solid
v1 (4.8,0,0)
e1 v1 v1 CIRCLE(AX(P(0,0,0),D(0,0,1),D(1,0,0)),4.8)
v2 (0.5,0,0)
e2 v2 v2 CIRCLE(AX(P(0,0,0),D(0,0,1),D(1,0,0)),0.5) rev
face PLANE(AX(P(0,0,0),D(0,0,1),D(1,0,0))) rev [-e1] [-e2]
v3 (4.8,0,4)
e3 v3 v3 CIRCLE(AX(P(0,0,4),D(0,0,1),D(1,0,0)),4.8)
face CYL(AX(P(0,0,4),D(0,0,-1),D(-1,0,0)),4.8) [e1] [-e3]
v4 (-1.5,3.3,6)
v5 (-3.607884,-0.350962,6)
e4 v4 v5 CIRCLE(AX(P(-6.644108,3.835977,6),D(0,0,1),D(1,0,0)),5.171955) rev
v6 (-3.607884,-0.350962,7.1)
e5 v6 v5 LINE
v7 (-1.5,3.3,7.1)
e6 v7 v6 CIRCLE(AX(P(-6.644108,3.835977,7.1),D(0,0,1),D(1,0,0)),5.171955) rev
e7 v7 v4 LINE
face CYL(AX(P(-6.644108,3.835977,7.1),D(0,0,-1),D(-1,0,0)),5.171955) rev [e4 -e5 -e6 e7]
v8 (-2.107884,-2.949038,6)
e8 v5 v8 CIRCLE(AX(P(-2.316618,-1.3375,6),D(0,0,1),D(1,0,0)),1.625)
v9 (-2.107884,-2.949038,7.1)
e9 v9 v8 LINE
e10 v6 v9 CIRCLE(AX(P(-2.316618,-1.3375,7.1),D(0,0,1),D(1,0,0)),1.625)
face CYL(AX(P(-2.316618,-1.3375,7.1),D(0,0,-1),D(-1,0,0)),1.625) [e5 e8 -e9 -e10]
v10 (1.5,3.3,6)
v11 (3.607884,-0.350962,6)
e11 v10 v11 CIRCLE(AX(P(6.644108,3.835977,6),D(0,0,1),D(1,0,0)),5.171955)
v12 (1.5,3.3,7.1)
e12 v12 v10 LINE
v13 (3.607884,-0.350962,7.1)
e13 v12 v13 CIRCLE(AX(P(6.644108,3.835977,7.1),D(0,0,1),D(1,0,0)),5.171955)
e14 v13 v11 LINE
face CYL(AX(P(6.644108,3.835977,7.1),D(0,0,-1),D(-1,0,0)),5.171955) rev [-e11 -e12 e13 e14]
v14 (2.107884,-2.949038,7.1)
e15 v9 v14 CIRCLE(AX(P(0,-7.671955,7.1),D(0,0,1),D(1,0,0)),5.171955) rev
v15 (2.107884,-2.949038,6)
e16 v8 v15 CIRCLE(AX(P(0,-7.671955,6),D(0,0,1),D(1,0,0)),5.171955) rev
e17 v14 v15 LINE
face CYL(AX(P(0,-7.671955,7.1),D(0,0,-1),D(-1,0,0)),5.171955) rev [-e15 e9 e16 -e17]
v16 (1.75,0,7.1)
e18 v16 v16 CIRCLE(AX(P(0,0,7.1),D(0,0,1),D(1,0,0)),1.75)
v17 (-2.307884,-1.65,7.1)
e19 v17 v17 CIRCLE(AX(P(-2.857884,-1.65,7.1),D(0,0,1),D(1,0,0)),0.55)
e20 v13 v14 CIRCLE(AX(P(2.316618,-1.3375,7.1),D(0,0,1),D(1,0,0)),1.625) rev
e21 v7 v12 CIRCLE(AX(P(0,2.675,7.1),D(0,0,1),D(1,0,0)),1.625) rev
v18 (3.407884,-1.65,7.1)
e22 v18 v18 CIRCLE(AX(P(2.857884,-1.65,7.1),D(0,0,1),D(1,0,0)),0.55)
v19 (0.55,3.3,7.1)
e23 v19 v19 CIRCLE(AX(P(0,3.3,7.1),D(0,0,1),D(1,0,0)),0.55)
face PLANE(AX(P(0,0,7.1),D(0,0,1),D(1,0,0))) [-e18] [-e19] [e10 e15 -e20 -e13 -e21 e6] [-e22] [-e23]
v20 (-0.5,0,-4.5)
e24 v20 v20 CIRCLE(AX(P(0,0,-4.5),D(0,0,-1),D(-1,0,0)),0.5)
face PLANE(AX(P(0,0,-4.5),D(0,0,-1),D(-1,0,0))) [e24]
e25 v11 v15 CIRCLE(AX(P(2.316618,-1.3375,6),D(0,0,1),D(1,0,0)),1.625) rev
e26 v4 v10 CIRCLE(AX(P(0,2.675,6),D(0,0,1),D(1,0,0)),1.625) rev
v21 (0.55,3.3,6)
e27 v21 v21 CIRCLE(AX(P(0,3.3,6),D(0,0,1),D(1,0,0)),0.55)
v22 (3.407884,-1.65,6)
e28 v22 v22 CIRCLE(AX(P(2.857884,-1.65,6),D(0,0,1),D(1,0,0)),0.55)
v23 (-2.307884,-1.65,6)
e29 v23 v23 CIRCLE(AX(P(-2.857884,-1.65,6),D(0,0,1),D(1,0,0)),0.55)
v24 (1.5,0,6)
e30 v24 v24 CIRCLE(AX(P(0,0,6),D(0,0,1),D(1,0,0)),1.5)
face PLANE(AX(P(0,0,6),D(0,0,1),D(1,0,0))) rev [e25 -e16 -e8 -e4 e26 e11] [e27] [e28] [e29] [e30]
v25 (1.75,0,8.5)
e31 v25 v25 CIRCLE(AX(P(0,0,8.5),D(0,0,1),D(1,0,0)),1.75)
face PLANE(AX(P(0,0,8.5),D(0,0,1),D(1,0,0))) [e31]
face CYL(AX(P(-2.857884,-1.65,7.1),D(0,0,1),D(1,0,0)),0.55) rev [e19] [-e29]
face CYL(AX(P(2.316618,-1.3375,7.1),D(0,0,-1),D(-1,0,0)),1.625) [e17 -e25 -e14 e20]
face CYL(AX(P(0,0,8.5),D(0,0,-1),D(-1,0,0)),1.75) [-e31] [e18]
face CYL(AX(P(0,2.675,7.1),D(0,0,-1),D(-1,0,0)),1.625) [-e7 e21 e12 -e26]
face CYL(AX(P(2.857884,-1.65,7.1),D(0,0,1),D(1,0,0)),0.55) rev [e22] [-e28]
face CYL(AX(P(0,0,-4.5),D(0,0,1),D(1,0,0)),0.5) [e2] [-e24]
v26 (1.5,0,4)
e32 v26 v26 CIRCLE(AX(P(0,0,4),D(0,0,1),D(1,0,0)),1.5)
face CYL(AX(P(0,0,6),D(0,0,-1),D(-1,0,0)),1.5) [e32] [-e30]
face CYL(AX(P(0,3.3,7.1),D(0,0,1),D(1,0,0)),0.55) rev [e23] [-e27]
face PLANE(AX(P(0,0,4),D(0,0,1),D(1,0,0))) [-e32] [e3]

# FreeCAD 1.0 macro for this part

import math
import FreeCAD as App
import Part
import Sketcher
from FreeCAD import Vector
Q = App.Units.Quantity

doc = App.newDocument("Part")
body = doc.addObject("PartDesign::Body", "Body")

# Sketch on XY plane
sketch1 = body.newObject("Sketcher::SketchObject", "Sketch")
sketch1.AttachmentSupport = (doc.getObject("XY_Plane"), [""])
sketch1.MapMode = "FlatFace"
sketch1.addGeometry(Part.Circle(Vector(0, 0, 0), Vector(0, 0, 1), 4.8), False)
sketch1.addConstraint(Sketcher.Constraint("Coincident", 0, 3, -1, 1))
sketch1.addConstraint(Sketcher.Constraint("Diameter", 0, Q("9.6 mm")))
pad1 = body.newObject("PartDesign::Pad", "Pad")
pad1.Profile = sketch1
pad1.Length = 4

# Sketch on XY plane
sketch2 = body.newObject("Sketcher::SketchObject", "Sketch001")
sketch2.AttachmentSupport = (doc.getObject("XY_Plane"), [""])
sketch2.MapMode = "FlatFace"
sketch2.AttachmentOffset = App.Placement(Vector(0, 0, 4), App.Rotation())
sketch2.addGeometry(Part.Circle(Vector(0, 0, 0), Vector(0, 0, 1), 1.5), False)
sketch2.addConstraint(Sketcher.Constraint("Coincident", 0, 3, -1, 1))
sketch2.addConstraint(Sketcher.Constraint("Diameter", 0, Q("3 mm")))
pad2 = body.newObject("PartDesign::Pad", "Pad001")
pad2.Profile = sketch2
pad2.Length = 2

# Sketch on XY plane
sketch3 = body.newObject("Sketcher::SketchObject", "Sketch002")
sketch3.AttachmentSupport = (doc.getObject("XY_Plane"), [""])
sketch3.MapMode = "FlatFace"
sketch3.AttachmentOffset = App.Placement(Vector(0, 0, 6), App.Rotation())
sketch3.addGeometry(Part.ArcOfCircle(Part.Circle(Vector(2.3, -1.3, 0), Vector(0, 0, 1), 1.6), math.radians(-30), math.radians(37)), False)
sketch3.addGeometry(Part.ArcOfCircle(Part.Circle(Vector(6.6, 3.8, 0), Vector(0, 0, 1), 5.2), math.radians(-150), math.radians(-126)), False)
sketch3.addGeometry(Part.ArcOfCircle(Part.Circle(Vector(6.6, 3.8, 0), Vector(0, 0, 1), 5.2), math.radians(-174), math.radians(-150)), False)
sketch3.addGeometry(Part.ArcOfCircle(Part.Circle(Vector(0, 2.7, 0), Vector(0, 0, 1), 1.6), math.radians(23), math.radians(90)), False)
sketch3.addGeometry(Part.ArcOfCircle(Part.Circle(Vector(0, 2.7, 0), Vector(0, 0, 1), 1.6), math.radians(90), math.radians(157)), False)
sketch3.addGeometry(Part.ArcOfCircle(Part.Circle(Vector(-6.6, 3.8, 0), Vector(0, 0, 1), 5.2), math.radians(-30), math.radians(-6)), False)
sketch3.addGeometry(Part.ArcOfCircle(Part.Circle(Vector(-6.6, 3.8, 0), Vector(0, 0, 1), 5.2), math.radians(-54), math.radians(-30)), False)
sketch3.addGeometry(Part.ArcOfCircle(Part.Circle(Vector(-2.3, -1.3, 0), Vector(0, 0, 1), 1.6), math.radians(143), math.radians(210)), False)
sketch3.addGeometry(Part.ArcOfCircle(Part.Circle(Vector(-2.3, -1.3, 0), Vector(0, 0, 1), 1.6), math.radians(-150), math.radians(-83)), False)
sketch3.addGeometry(Part.ArcOfCircle(Part.Circle(Vector(0, -7.7, 0), Vector(0, 0, 1), 5.2), math.radians(90), math.radians(114)), False)
sketch3.addGeometry(Part.ArcOfCircle(Part.Circle(Vector(0, -7.7, 0), Vector(0, 0, 1), 5.2), math.radians(66), math.radians(90)), False)
sketch3.addGeometry(Part.ArcOfCircle(Part.Circle(Vector(2.3, -1.3, 0), Vector(0, 0, 1), 1.6), math.radians(-97), math.radians(-30)), False)
sketch3.addConstraint(Sketcher.Constraint("Coincident", 0, 2, 1, 2))
sketch3.addConstraint(Sketcher.Constraint("Tangent", 1, 1, 2, 2))
sketch3.addConstraint(Sketcher.Constraint("Coincident", 2, 1, 3, 1))
sketch3.addConstraint(Sketcher.Constraint("Tangent", 3, 2, 4, 1))
sketch3.addConstraint(Sketcher.Constraint("Coincident", 4, 2, 5, 2))
sketch3.addConstraint(Sketcher.Constraint("Tangent", 5, 1, 6, 2))
sketch3.addConstraint(Sketcher.Constraint("Coincident", 6, 1, 7, 1))
sketch3.addConstraint(Sketcher.Constraint("Tangent", 7, 2, 8, 1))
sketch3.addConstraint(Sketcher.Constraint("Coincident", 8, 2, 9, 2))
sketch3.addConstraint(Sketcher.Constraint("Tangent", 9, 1, 10, 2))
sketch3.addConstraint(Sketcher.Constraint("Coincident", 10, 1, 11, 1))
sketch3.addConstraint(Sketcher.Constraint("Tangent", 11, 2, 0, 1))
sketch3.addConstraint(Sketcher.Constraint("Equal", 1, 2))
sketch3.addConstraint(Sketcher.Constraint("Equal", 0, 3))
sketch3.addConstraint(Sketcher.Constraint("Equal", 3, 4))
sketch3.addConstraint(Sketcher.Constraint("Equal", 2, 5))
sketch3.addConstraint(Sketcher.Constraint("Equal", 5, 6))
sketch3.addConstraint(Sketcher.Constraint("Equal", 4, 7))
sketch3.addConstraint(Sketcher.Constraint("Equal", 7, 8))
sketch3.addConstraint(Sketcher.Constraint("Equal", 6, 9))
sketch3.addConstraint(Sketcher.Constraint("Equal", 9, 10))
sketch3.addConstraint(Sketcher.Constraint("Equal", 8, 11))
sketch3.addConstraint(Sketcher.Constraint("Symmetric", 1, 3, 5, 3, -2))
sketch3.addConstraint(Sketcher.Constraint("Symmetric", 0, 3, 7, 3, -2))
sketch3.addConstraint(Sketcher.Constraint("PointOnObject", 3, 3, -2))
sketch3.addConstraint(Sketcher.Constraint("PointOnObject", 9, 3, -2))
sketch3.addConstraint(Sketcher.Constraint("PointOnObject", 3, 2, -2))
sketch3.addConstraint(Sketcher.Constraint("PointOnObject", 9, 1, -2))
sketch3.addConstraint(Sketcher.Constraint("Horizontal", 1, 1, 5, 1))
sketch3.addConstraint(Sketcher.Constraint("Horizontal", 7, 2, 11, 2))
sketch3.addConstraint(Sketcher.Constraint("Radius", 0, Q("1.625 mm")))
sketch3.addConstraint(Sketcher.Constraint("DistanceY", 2, 1, 3, 2, Q("1 mm")))
sketch3.addConstraint(Sketcher.Constraint("DistanceY", -1, 1, 2, 1, Q("3.3 mm")))
sketch3.addConstraint(Sketcher.Constraint("DistanceY", 9, 1, -1, 1, Q("2.5 mm")))
sketch3.addConstraint(Sketcher.Constraint("DistanceY", 7, 2, 5, 1, Q("3.4 mm")))
sketch3.addConstraint(Sketcher.Constraint("DistanceX", 6, 1, 8, 2, Q("1.5 mm")))
sketch3.addConstraint(Sketcher.Constraint("DistanceY", -1, 1, 1, 1, Q("1.25 mm")))
sketch3.addConstraint(Sketcher.Constraint("Radius", 1, Q("5.171955 mm")))
sketch3.addConstraint(Sketcher.Constraint("DistanceY", 0, 3, -1, 1, Q("1.3375 mm")))
sketch3.addConstraint(Sketcher.Constraint("DistanceY", 0, 2, -1, 1, Q("0.350962 mm")))
pad3 = body.newObject("PartDesign::Pad", "Pad002")
pad3.Profile = sketch3
pad3.Length = 1.1

# Sketch on XY plane
sketch4 = body.newObject("Sketcher::SketchObject", "Sketch003")
sketch4.AttachmentSupport = (doc.getObject("XY_Plane"), [""])
sketch4.MapMode = "FlatFace"
sketch4.AttachmentOffset = App.Placement(Vector(0, 0, 7.1), App.Rotation())
sketch4.addGeometry(Part.Circle(Vector(2.9, -1.6, 0), Vector(0, 0, 1), 0.6), False)
sketch4.addGeometry(Part.Circle(Vector(-2.9, -1.6, 0), Vector(0, 0, 1), 0.6), False)
sketch4.addGeometry(Part.Circle(Vector(0, 3.3, 0), Vector(0, 0, 1), 0.6), False)
sketch4.addConstraint(Sketcher.Constraint("Equal", 0, 1))
sketch4.addConstraint(Sketcher.Constraint("Equal", 1, 2))
sketch4.addConstraint(Sketcher.Constraint("Symmetric", 0, 3, 1, 3, -2))
sketch4.addConstraint(Sketcher.Constraint("PointOnObject", 2, 3, -2))
sketch4.addConstraint(Sketcher.Constraint("Diameter", 0, Q("1.1 mm")))
sketch4.addConstraint(Sketcher.Constraint("DistanceY", -1, 1, 2, 3, Q("3.3 mm")))
sketch4.addConstraint(Sketcher.Constraint("DistanceY", 0, 3, -1, 1, Q("1.65 mm")))
sketch4.addConstraint(Sketcher.Constraint("DistanceX", 1, 3, 0, 3, Q("5.715768 mm")))
doc.recompute()
hole = body.newObject("PartDesign::Hole", "Hole")
hole.Profile = sketch4
hole.ThreadType = "None"
hole.Diameter = 1.1
hole.DepthType = "Dimension"
hole.Depth = 1.1
hole.DrillPoint = "Flat"

# Sketch on XY plane
sketch5 = body.newObject("Sketcher::SketchObject", "Sketch004")
sketch5.AttachmentSupport = (doc.getObject("XY_Plane"), [""])
sketch5.MapMode = "FlatFace"
sketch5.addGeometry(Part.Circle(Vector(0, 0, 0), Vector(0, 0, 1), 0.5), False)
sketch5.addConstraint(Sketcher.Constraint("Coincident", 0, 3, -1, 1))
sketch5.addConstraint(Sketcher.Constraint("Diameter", 0, Q("1 mm")))
pad4 = body.newObject("PartDesign::Pad", "Pad003")
pad4.Profile = sketch5
pad4.Length = 4.5
pad4.Reversed = True

# Sketch on XY plane
sketch6 = body.newObject("Sketcher::SketchObject", "Sketch005")
sketch6.AttachmentSupport = (doc.getObject("XY_Plane"), [""])
sketch6.MapMode = "FlatFace"
sketch6.AttachmentOffset = App.Placement(Vector(0, 0, 7.1), App.Rotation())
sketch6.addGeometry(Part.Circle(Vector(0, 0, 0), Vector(0, 0, 1), 1.8), False)
sketch6.addConstraint(Sketcher.Constraint("Coincident", 0, 3, -1, 1))
sketch6.addConstraint(Sketcher.Constraint("Diameter", 0, Q("3.5 mm")))
pad5 = body.newObject("PartDesign::Pad", "Pad004")
pad5.Profile = sketch6
pad5.Length = 1.4

doc.recompute()
